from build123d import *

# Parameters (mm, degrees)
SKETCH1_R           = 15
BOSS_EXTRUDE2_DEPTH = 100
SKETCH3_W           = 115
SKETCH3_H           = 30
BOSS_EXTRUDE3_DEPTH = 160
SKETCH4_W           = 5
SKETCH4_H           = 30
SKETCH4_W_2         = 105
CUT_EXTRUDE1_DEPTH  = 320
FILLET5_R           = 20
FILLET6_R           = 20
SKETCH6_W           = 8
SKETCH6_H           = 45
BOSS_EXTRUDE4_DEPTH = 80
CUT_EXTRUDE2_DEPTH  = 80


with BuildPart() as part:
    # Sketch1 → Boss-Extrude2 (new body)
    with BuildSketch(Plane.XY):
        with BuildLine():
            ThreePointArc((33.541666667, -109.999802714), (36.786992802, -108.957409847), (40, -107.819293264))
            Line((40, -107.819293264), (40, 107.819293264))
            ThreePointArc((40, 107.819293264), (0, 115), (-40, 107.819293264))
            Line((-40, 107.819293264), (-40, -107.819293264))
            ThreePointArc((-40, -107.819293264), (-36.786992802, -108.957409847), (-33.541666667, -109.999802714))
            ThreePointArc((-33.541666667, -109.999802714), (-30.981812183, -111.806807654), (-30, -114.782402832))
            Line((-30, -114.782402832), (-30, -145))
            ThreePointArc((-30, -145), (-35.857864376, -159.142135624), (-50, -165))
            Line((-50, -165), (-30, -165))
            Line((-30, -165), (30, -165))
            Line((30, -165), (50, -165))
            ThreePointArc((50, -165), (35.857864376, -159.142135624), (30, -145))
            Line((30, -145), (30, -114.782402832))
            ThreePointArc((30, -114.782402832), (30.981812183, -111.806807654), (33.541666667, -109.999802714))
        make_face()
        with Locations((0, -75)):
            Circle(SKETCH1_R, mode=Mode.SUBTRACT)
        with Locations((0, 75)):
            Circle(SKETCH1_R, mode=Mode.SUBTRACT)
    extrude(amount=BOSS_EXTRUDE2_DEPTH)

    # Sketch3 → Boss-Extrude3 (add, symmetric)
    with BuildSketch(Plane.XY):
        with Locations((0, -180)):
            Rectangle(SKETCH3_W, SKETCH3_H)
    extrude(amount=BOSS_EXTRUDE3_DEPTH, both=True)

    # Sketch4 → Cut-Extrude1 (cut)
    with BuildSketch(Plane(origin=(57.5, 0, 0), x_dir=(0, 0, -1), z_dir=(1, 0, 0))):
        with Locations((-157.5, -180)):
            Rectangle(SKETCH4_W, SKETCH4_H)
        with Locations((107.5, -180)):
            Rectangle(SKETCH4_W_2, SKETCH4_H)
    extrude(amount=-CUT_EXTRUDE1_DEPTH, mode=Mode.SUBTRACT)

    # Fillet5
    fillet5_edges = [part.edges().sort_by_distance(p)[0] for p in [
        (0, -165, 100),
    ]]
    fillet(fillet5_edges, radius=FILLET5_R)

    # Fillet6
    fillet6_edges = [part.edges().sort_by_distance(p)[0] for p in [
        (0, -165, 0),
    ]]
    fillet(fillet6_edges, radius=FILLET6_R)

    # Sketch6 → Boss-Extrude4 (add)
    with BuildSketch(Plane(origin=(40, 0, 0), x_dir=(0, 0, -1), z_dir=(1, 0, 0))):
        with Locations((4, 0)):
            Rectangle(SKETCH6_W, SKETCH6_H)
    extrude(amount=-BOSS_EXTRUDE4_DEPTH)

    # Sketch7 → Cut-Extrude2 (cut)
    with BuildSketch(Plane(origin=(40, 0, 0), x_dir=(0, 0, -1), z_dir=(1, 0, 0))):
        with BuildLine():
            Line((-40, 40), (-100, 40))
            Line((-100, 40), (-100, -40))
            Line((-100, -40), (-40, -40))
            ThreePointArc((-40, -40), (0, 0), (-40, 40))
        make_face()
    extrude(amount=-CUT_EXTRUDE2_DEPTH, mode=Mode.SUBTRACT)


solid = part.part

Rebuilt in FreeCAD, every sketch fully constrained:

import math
import FreeCAD as App
import Part
import Sketcher


def edges_at(feature, points):
    """Names of the edges that pass closest to the given points."""
    edges = feature.Shape.Edges
    near = lambda p: min(range(len(edges)), key=lambda i: edges[i].distToShape(Part.Vertex(*p))[0])
    return sorted({f"Edge{near(p) + 1}" for p in points})

doc = App.newDocument("Part")
params = doc.addObject("Spreadsheet::Sheet", "Params")
for row, (alias, value) in enumerate([
    ("sketch1_diameter", "30 mm"),
    ("sketch1_radius", "115 mm"),
    ("sketch1_radius2", "5 mm"),
    ("sketch1_radius3", "20 mm"),
    ("sketch1_width", "100 mm"),
    ("pad1_length", "100 mm"),
    ("sketch2_width", "115 mm"),
    ("sketch2_height", "30 mm"),
    ("pad2_length", "320 mm"),
    ("sketch3_width", "30 mm"),
    ("sketch3_height", "5 mm"),
    ("sketch3_height2", "105 mm"),
    ("pocket1_length", "320 mm"),
    ("fillet_radius", "20 mm"),
    ("fillet2_radius", "20 mm"),
    ("sketch4_width", "45 mm"),
    ("sketch4_height", "8 mm"),
    ("pad3_length", "80 mm"),
    ("sketch5_radius", "40 mm"),
    ("sketch5_height", "60 mm"),
    ("pocket2_length", "80 mm"),
], start=1):
    params.set(f"A{row}", alias)
    params.set(f"B{row}", "=" + value)
    params.setAlias(f"B{row}", alias)

body = doc.addObject("PartDesign::Body", "Body")

# Sketch on XY plane
sketch1 = body.newObject("Sketcher::SketchObject", "Sketch")
sketch1.AttachmentSupport = (doc.getObject("XY_Plane"), [""])
sketch1.MapMode = "FlatFace"
sketch1.addGeometry([
    Part.ArcOfCircle(Part.Circle(App.Vector(0, 0, 0), App.Vector(0, 0, 1), 115), math.radians(-73.04), math.radians(-69.65)),  # 0
    Part.LineSegment(App.Vector(40, -108, 0), App.Vector(40, 108, 0)),  # 1
    Part.ArcOfCircle(Part.Circle(App.Vector(0, 0, 0), App.Vector(0, 0, 1), 115), math.radians(70), math.radians(110)),  # 2
    Part.LineSegment(App.Vector(-40, 108, 0), App.Vector(-40, -108, 0)),  # 3
    Part.ArcOfCircle(Part.Circle(App.Vector(0, 0, 0), App.Vector(0, 0, 1), 115), math.radians(-110.35), math.radians(-106.96)),  # 4
    Part.ArcOfCircle(Part.Circle(App.Vector(-35, -115, 0), App.Vector(0, 0, 1), 5), math.radians(0), math.radians(73)),  # 5
    Part.LineSegment(App.Vector(-30, -115, 0), App.Vector(-30, -145, 0)),  # 6
    Part.ArcOfCircle(Part.Circle(App.Vector(-50, -145, 0), App.Vector(0, 0, 1), 20), math.radians(-90), math.radians(0)),  # 7
    Part.LineSegment(App.Vector(-50, -165, 0), App.Vector(50, -165, 0)),  # 8
    Part.ArcOfCircle(Part.Circle(App.Vector(50, -145, 0), App.Vector(0, 0, 1), 20), math.radians(180), math.radians(270)),  # 9
    Part.LineSegment(App.Vector(30, -145, 0), App.Vector(30, -115, 0)),  # 10
    Part.ArcOfCircle(Part.Circle(App.Vector(35, -115, 0), App.Vector(0, 0, 1), 5), math.radians(107), math.radians(180)),  # 11
    Part.Circle(App.Vector(0, -75, 0), App.Vector(0, 0, 1), 15),  # 12
    Part.Circle(App.Vector(0, 75, 0), App.Vector(0, 0, 1), 15),  # 13
], False)
sketch1.addConstraint([
    Sketcher.Constraint("Coincident", 0, 2, 1, 1),
    Sketcher.Constraint("Coincident", 1, 2, 2, 1),
    Sketcher.Constraint("Coincident", 2, 2, 3, 1),
    Sketcher.Constraint("Coincident", 3, 2, 4, 1),
    Sketcher.Constraint("Tangent", 4, 2, 5, 2),
    Sketcher.Constraint("Tangent", 5, 1, 6, 1),
    Sketcher.Constraint("Tangent", 6, 2, 7, 2),
    Sketcher.Constraint("Tangent", 7, 1, 8, 1),
    Sketcher.Constraint("Tangent", 8, 2, 9, 2),
    Sketcher.Constraint("Tangent", 9, 1, 10, 1),
    Sketcher.Constraint("Tangent", 10, 2, 11, 2),
    Sketcher.Constraint("Tangent", 11, 1, 0, 1),
    Sketcher.Constraint("Vertical", 1),
    Sketcher.Constraint("Vertical", 3),
    Sketcher.Constraint("Vertical", 6),
    Sketcher.Constraint("Horizontal", 8),
    Sketcher.Constraint("Vertical", 10),
    Sketcher.Constraint("Coincident", 0, 3, -1, 1),
    Sketcher.Constraint("Coincident", 2, 3, -1, 1),
    Sketcher.Constraint("Coincident", 4, 3, -1, 1),
    Sketcher.Constraint("Equal", 0, 2),
    Sketcher.Constraint("Equal", 2, 4),
    Sketcher.Constraint("Equal", 7, 9),
    Sketcher.Constraint("Equal", 5, 11),
    Sketcher.Constraint("Equal", 12, 13),
    Sketcher.Constraint("Symmetric", 12, 3, 13, 3, -1, 1),
    Sketcher.Constraint("PointOnObject", 12, 3, -2),
    Sketcher.Constraint("Horizontal", 5, 3, 11, 3),
    Sketcher.Constraint("Horizontal", 1, 2, 2, 2),
    Sketcher.Constraint("Diameter", 12, 30.0),
    Sketcher.Constraint("Radius", 0, 115.0),
    Sketcher.Constraint("Radius", 5, 5.0),
    Sketcher.Constraint("Radius", 7, 20.0),
    Sketcher.Constraint("DistanceX", 8, 1, 8, 2, 100.0),
    Sketcher.Constraint("DistanceY", 7, 3, -1, 1, 145.0),
    Sketcher.Constraint("DistanceY", 12, 3, -1, 1, 75.0),
    Sketcher.Constraint("DistanceX", -1, 1, 0, 2, 40.0),
])
sketch1.setExpression("Constraints[29]", "Params.sketch1_diameter")
sketch1.setExpression("Constraints[30]", "Params.sketch1_radius")
sketch1.setExpression("Constraints[31]", "Params.sketch1_radius2")
sketch1.setExpression("Constraints[32]", "Params.sketch1_radius3")
sketch1.setExpression("Constraints[33]", "Params.sketch1_width")
pad1 = body.newObject("PartDesign::Pad", "Pad")
pad1.Profile = sketch1
pad1.setExpression("Length", "Params.pad1_length")

# Sketch on XY plane
sketch2 = body.newObject("Sketcher::SketchObject", "Sketch001")
sketch2.AttachmentSupport = (doc.getObject("XY_Plane"), [""])
sketch2.MapMode = "FlatFace"
sketch2.addGeometry([
    Part.LineSegment(App.Vector(-58, -165, 0), App.Vector(-58, -195, 0)),
    Part.LineSegment(App.Vector(-58, -195, 0), App.Vector(58, -195, 0)),
    Part.LineSegment(App.Vector(58, -195, 0), App.Vector(58, -165, 0)),
    Part.LineSegment(App.Vector(58, -165, 0), App.Vector(-58, -165, 0)),
], False)
sketch2.addConstraint([
    Sketcher.Constraint("Coincident", 0, 2, 1, 1),
    Sketcher.Constraint("Coincident", 1, 2, 2, 1),
    Sketcher.Constraint("Coincident", 2, 2, 3, 1),
    Sketcher.Constraint("Coincident", 3, 2, 0, 1),
    Sketcher.Constraint("Vertical", 0),
    Sketcher.Constraint("Horizontal", 1),
    Sketcher.Constraint("Vertical", 2),
    Sketcher.Constraint("Horizontal", 3),
    Sketcher.Constraint("DistanceX", 1, 1, 1, 2, 115.0),
    Sketcher.Constraint("DistanceY", 0, 2, 0, 1, 30.0),
    Sketcher.Constraint("DistanceY", 0, 2, -1, 1, 195.0),
    Sketcher.Constraint("DistanceX", 0, 2, -1, 1, 57.5),
])
sketch2.setExpression("Constraints[8]", "Params.sketch2_width")
sketch2.setExpression("Constraints[9]", "Params.sketch2_height")
pad2 = body.newObject("PartDesign::Pad", "Pad001")
pad2.Profile = sketch2
pad2.setExpression("Length", "Params.pad2_length")
pad2.Midplane = True

# Sketch on YZ plane
sketch3 = body.newObject("Sketcher::SketchObject", "Sketch002")
sketch3.AttachmentSupport = (doc.getObject("YZ_Plane"), [""])
sketch3.MapMode = "FlatFace"
sketch3.AttachmentOffset = App.Placement(App.Vector(0, 0, 57.5), App.Rotation())
sketch3.addGeometry([
    Part.LineSegment(App.Vector(-165, 160, 0), App.Vector(-195, 160, 0)),  # 0
    Part.LineSegment(App.Vector(-195, 160, 0), App.Vector(-195, 155, 0)),  # 1
    Part.LineSegment(App.Vector(-195, 155, 0), App.Vector(-165, 155, 0)),  # 2
    Part.LineSegment(App.Vector(-165, 155, 0), App.Vector(-165, 160, 0)),  # 3
    Part.LineSegment(App.Vector(-165, -55, 0), App.Vector(-195, -55, 0)),  # 4
    Part.LineSegment(App.Vector(-195, -55, 0), App.Vector(-195, -160, 0)),  # 5
    Part.LineSegment(App.Vector(-195, -160, 0), App.Vector(-165, -160, 0)),  # 6
    Part.LineSegment(App.Vector(-165, -160, 0), App.Vector(-165, -55, 0)),  # 7
], False)
sketch3.addConstraint([
    Sketcher.Constraint("Coincident", 0, 2, 1, 1),
    Sketcher.Constraint("Coincident", 1, 2, 2, 1),
    Sketcher.Constraint("Coincident", 2, 2, 3, 1),
    Sketcher.Constraint("Coincident", 3, 2, 0, 1),
    Sketcher.Constraint("Coincident", 4, 2, 5, 1),
    Sketcher.Constraint("Coincident", 5, 2, 6, 1),
    Sketcher.Constraint("Coincident", 6, 2, 7, 1),
    Sketcher.Constraint("Coincident", 7, 2, 4, 1),
    Sketcher.Constraint("Horizontal", 0),
    Sketcher.Constraint("Vertical", 1),
    Sketcher.Constraint("Horizontal", 2),
    Sketcher.Constraint("Vertical", 3),
    Sketcher.Constraint("Horizontal", 4),
    Sketcher.Constraint("Vertical", 5),
    Sketcher.Constraint("Horizontal", 6),
    Sketcher.Constraint("Vertical", 7),
    Sketcher.Constraint("Symmetric", 0, 2, 5, 2, -1),
    Sketcher.Constraint("Vertical", 3, 2, 6, 2),
    Sketcher.Constraint("DistanceX", 0, 2, 0, 1, 30.0),
    Sketcher.Constraint("DistanceY", 1, 2, 1, 1, 5.0),
    Sketcher.Constraint("DistanceY", 5, 2, 5, 1, 105.0),
    Sketcher.Constraint("DistanceX", 0, 2, -1, 1, 195.0),
    Sketcher.Constraint("DistanceY", -1, 1, 0, 2, 160.0),
])
sketch3.setExpression("Constraints[18]", "Params.sketch3_width")
sketch3.setExpression("Constraints[19]", "Params.sketch3_height")
sketch3.setExpression("Constraints[20]", "Params.sketch3_height2")
pocket1 = body.newObject("PartDesign::Pocket", "Pocket")
pocket1.Profile = sketch3
pocket1.setExpression("Length", "Params.pocket1_length")
doc.recompute()

fillet = body.newObject("PartDesign::Fillet", "Fillet")
fillet.Base = (pocket1, edges_at(pocket1, [(0, -165, 100)]))
fillet.setExpression("Radius", "Params.fillet_radius")
doc.recompute()

fillet2 = body.newObject("PartDesign::Fillet", "Fillet001")
fillet2.Base = (fillet, edges_at(fillet, [(0, -165, 0)]))
fillet2.setExpression("Radius", "Params.fillet2_radius")

# Sketch on YZ plane
sketch4 = body.newObject("Sketcher::SketchObject", "Sketch003")
sketch4.AttachmentSupport = (doc.getObject("YZ_Plane"), [""])
sketch4.MapMode = "FlatFace"
sketch4.AttachmentOffset = App.Placement(App.Vector(0, 0, 40), App.Rotation())
sketch4.addGeometry([
    Part.LineSegment(App.Vector(22, 0, 0), App.Vector(-22, 0, 0)),
    Part.LineSegment(App.Vector(-22, 0, 0), App.Vector(-22, -8, 0)),
    Part.LineSegment(App.Vector(-22, -8, 0), App.Vector(22, -8, 0)),
    Part.LineSegment(App.Vector(22, -8, 0), App.Vector(22, 0, 0)),
], False)
sketch4.addConstraint([
    Sketcher.Constraint("Coincident", 0, 2, 1, 1),
    Sketcher.Constraint("Coincident", 1, 2, 2, 1),
    Sketcher.Constraint("Coincident", 2, 2, 3, 1),
    Sketcher.Constraint("Coincident", 3, 2, 0, 1),
    Sketcher.Constraint("Horizontal", 0),
    Sketcher.Constraint("Vertical", 1),
    Sketcher.Constraint("Horizontal", 2),
    Sketcher.Constraint("Vertical", 3),
    Sketcher.Constraint("Symmetric", 0, 2, 3, 2, -1, 1),
    Sketcher.Constraint("DistanceX", 0, 2, 0, 1, 45.0),
    Sketcher.Constraint("DistanceY", 1, 2, 1, 1, 8.0),
])
sketch4.setExpression("Constraints[9]", "Params.sketch4_width")
sketch4.setExpression("Constraints[10]", "Params.sketch4_height")
pad3 = body.newObject("PartDesign::Pad", "Pad002")
pad3.Profile = sketch4
pad3.setExpression("Length", "Params.pad3_length")
pad3.Reversed = True

# Sketch on YZ plane
sketch5 = body.newObject("Sketcher::SketchObject", "Sketch004")
sketch5.AttachmentSupport = (doc.getObject("YZ_Plane"), [""])
sketch5.MapMode = "FlatFace"
sketch5.AttachmentOffset = App.Placement(App.Vector(0, 0, 40), App.Rotation())
sketch5.addGeometry([
    Part.LineSegment(App.Vector(40, 40, 0), App.Vector(40, 100, 0)),
    Part.LineSegment(App.Vector(40, 100, 0), App.Vector(-40, 100, 0)),
    Part.LineSegment(App.Vector(-40, 100, 0), App.Vector(-40, 40, 0)),
    Part.ArcOfCircle(Part.Circle(App.Vector(0, 40, 0), App.Vector(0, 0, 1), 40), math.radians(180), math.radians(360)),
], False)
sketch5.addConstraint([
    Sketcher.Constraint("Coincident", 0, 2, 1, 1),
    Sketcher.Constraint("Coincident", 1, 2, 2, 1),
    Sketcher.Constraint("Tangent", 2, 2, 3, 1),
    Sketcher.Constraint("Tangent", 3, 2, 0, 1),
    Sketcher.Constraint("Vertical", 0),
    Sketcher.Constraint("Horizontal", 1),
    Sketcher.Constraint("Vertical", 2),
    Sketcher.Constraint("PointOnObject", 3, 3, -2),
    Sketcher.Constraint("Radius", 3, 40.0),
    Sketcher.Constraint("DistanceY", 0, 1, 0, 2, 60.0),
    Sketcher.Constraint("DistanceY", -1, 1, 3, 3, 40.0),
])
sketch5.setExpression("Constraints[8]", "Params.sketch5_radius")
sketch5.setExpression("Constraints[9]", "Params.sketch5_height")
pocket2 = body.newObject("PartDesign::Pocket", "Pocket001")
pocket2.Profile = sketch5
pocket2.setExpression("Length", "Params.pocket2_length")

doc.recompute()
